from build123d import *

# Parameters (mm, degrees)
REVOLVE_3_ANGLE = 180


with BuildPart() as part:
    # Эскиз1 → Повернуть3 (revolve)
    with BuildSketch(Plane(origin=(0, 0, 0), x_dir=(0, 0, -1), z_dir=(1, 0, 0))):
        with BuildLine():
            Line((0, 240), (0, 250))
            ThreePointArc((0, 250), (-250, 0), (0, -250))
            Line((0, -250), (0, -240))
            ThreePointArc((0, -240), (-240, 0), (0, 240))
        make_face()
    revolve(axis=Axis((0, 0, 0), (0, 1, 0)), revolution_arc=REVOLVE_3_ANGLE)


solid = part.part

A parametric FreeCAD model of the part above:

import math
import FreeCAD as App
import Part
import Sketcher
from FreeCAD import Vector
Q = App.Units.Quantity

doc = App.newDocument("Part")
body = doc.addObject("PartDesign::Body", "Body")

sketch1 = doc.addObject("Sketcher::SketchObject", "Sketch")
body.addObject(sketch1)
sketch1.AttachmentSupport = (doc.YZ_Plane, [""])
sketch1.MapMode = "FlatFace"
sketch1.addGeometry([
    Part.LineSegment(Vector(240, 0, 0), Vector(250, 0, 0)),
    Part.ArcOfCircle(Part.Circle(Vector(0, 0, 0), Vector(0, 0, 1), 250), math.radians(0), math.radians(180)),
    Part.LineSegment(Vector(-250, 0, 0), Vector(-240, 0, 0)),
    Part.ArcOfCircle(Part.Circle(Vector(0, 0, 0), Vector(0, 0, 1), 240), math.radians(0), math.radians(180)),
], False)
sketch1.addConstraint([
    Sketcher.Constraint("Coincident", 0, 2, 1, 1),
    Sketcher.Constraint("Coincident", 1, 2, 2, 1),
    Sketcher.Constraint("Coincident", 2, 2, 3, 2),
    Sketcher.Constraint("Coincident", 3, 1, 0, 1),
    Sketcher.Constraint("Horizontal", 0),
    Sketcher.Constraint("Horizontal", 2),
    Sketcher.Constraint("Coincident", 1, 3, -1, 1),
    Sketcher.Constraint("Coincident", 3, 3, -1, 1),
    Sketcher.Constraint("PointOnObject", 0, 2, -1),
    Sketcher.Constraint("PointOnObject", 1, 2, -1),
    Sketcher.Constraint("Radius", 1, Q("250 mm")),
    Sketcher.Constraint("Radius", 3, Q("240 mm")),
])
revolution = doc.addObject("PartDesign::Revolution", "Revolution")
body.addObject(revolution)
revolution.Profile = sketch1
revolution.ReferenceAxis = (sketch1, ["H_Axis"])
revolution.Angle = 180

doc.recompute()
